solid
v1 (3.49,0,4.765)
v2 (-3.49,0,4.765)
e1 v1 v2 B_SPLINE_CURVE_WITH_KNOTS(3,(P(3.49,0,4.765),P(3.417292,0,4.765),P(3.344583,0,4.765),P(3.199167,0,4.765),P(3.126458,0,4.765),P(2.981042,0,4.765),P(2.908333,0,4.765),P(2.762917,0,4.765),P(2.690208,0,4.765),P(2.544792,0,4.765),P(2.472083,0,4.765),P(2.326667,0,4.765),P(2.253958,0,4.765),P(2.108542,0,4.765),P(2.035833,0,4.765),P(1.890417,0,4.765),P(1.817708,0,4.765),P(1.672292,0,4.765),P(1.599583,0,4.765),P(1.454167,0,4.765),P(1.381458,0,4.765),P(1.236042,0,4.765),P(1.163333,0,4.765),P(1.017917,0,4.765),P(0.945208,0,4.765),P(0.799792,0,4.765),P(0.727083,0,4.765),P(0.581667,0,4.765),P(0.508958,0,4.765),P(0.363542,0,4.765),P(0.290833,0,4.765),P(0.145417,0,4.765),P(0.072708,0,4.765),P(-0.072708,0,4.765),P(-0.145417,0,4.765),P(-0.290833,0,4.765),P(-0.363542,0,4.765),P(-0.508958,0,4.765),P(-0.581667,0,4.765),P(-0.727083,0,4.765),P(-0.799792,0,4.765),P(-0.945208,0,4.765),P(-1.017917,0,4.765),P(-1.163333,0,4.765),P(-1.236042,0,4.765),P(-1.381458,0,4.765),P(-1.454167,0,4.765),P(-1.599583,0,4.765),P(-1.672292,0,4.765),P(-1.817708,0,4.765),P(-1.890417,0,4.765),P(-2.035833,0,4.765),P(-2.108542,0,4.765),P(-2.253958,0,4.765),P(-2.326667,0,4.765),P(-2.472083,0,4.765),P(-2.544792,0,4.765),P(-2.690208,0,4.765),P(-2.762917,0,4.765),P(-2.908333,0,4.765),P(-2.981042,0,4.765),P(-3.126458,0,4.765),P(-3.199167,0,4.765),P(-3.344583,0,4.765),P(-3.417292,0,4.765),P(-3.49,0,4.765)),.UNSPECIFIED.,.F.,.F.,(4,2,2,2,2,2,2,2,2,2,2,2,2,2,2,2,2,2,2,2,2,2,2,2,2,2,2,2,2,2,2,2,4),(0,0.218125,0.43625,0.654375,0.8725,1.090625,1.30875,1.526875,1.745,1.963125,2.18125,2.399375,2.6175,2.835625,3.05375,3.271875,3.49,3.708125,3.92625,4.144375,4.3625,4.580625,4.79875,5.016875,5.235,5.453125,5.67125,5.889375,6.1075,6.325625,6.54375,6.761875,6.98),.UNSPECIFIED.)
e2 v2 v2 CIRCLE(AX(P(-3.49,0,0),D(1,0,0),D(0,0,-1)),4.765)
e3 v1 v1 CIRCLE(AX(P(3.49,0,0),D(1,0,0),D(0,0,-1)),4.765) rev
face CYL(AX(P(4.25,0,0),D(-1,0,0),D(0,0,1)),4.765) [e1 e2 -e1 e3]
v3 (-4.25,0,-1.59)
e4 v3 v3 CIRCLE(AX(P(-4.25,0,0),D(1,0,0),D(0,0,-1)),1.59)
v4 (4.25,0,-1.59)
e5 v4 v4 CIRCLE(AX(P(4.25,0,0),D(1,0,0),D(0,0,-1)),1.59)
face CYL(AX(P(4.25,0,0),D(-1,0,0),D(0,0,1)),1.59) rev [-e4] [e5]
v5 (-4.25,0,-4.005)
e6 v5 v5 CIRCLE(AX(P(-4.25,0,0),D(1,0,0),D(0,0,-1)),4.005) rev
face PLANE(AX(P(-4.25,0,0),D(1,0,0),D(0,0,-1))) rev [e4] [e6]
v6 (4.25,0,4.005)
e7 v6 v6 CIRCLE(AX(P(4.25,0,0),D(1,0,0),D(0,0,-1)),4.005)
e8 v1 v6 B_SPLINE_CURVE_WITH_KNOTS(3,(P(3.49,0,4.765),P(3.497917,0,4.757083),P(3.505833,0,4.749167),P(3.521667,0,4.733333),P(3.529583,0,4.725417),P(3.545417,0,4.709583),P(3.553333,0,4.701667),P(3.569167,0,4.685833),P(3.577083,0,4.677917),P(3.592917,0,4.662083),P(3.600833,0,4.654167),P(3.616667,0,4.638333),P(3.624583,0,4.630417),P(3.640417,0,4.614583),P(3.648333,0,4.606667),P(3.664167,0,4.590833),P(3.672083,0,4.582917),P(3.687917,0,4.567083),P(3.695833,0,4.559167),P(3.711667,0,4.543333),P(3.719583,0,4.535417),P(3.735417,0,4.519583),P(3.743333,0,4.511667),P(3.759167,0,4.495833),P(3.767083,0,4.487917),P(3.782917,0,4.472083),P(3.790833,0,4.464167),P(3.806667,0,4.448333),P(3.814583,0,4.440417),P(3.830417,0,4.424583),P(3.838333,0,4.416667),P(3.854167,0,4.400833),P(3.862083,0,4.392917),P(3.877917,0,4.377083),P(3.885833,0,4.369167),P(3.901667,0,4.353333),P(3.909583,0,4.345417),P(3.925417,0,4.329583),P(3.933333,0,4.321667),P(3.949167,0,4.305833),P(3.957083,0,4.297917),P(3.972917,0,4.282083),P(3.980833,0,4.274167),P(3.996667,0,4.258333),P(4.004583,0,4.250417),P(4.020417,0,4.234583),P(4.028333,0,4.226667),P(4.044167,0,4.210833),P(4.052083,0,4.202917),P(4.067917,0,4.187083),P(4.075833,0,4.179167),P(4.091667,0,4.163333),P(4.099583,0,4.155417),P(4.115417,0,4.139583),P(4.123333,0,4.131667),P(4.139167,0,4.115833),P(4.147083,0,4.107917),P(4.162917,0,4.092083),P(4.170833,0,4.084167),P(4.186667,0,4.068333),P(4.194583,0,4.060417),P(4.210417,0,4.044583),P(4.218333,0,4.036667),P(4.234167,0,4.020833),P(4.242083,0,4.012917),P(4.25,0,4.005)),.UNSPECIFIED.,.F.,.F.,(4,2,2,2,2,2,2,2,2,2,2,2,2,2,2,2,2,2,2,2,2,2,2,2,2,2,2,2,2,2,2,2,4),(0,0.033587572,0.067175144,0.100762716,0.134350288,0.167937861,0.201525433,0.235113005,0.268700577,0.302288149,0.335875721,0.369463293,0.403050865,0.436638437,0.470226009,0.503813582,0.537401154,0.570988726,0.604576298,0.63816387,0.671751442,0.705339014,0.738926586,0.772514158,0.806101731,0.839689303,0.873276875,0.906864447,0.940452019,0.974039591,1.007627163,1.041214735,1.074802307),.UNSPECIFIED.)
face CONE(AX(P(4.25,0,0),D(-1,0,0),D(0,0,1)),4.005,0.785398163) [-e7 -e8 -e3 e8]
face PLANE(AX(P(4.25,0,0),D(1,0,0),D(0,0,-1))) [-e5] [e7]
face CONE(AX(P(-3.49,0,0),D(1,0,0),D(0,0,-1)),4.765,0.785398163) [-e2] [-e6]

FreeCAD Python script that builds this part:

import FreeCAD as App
import Part
import Sketcher
from FreeCAD import Vector


def edges_at(feature, points):
    """Names of the edges that pass closest to the given points."""
    edges = feature.Shape.Edges
    near = lambda p: min(range(len(edges)), key=lambda i: edges[i].distToShape(Part.Vertex(*p))[0])
    return sorted({f"Edge{near(p) + 1}" for p in points})

doc = App.newDocument("Part")
body = doc.addObject("PartDesign::Body", "Body")

sketch1 = doc.addObject("Sketcher::SketchObject", "Sketch")
body.addObject(sketch1)
sketch1.AttachmentSupport = (doc.YZ_Plane, [""])
sketch1.MapMode = "FlatFace"
sketch1.addGeometry([
    Part.Circle(Vector(0, 0, 0), Vector(0, 0, 1), 4.8),
    Part.Circle(Vector(0, 0, 0), Vector(0, 0, 1), 1.6),
], False)
sketch1.addConstraint([
    Sketcher.Constraint("Coincident", 0, 3, -1, 1),
    Sketcher.Constraint("Coincident", 1, 3, -1, 1),
    Sketcher.Constraint("Diameter", 0, 9.53),
    Sketcher.Constraint("Diameter", 1, 3.18),
])
pad1 = doc.addObject("PartDesign::Pad", "Pad")
body.addObject(pad1)
pad1.Profile = sketch1
pad1.Length = 8.5
pad1.Midplane = True
doc.recompute()

chamfer = doc.addObject("PartDesign::Chamfer", "Chamfer")
body.addObject(chamfer)
chamfer.Base = (pad1, edges_at(pad1, [(-4.25, 0, 4.765), (4.25, 0, 4.765)]))
chamfer.Size = 0.76

doc.recompute()
